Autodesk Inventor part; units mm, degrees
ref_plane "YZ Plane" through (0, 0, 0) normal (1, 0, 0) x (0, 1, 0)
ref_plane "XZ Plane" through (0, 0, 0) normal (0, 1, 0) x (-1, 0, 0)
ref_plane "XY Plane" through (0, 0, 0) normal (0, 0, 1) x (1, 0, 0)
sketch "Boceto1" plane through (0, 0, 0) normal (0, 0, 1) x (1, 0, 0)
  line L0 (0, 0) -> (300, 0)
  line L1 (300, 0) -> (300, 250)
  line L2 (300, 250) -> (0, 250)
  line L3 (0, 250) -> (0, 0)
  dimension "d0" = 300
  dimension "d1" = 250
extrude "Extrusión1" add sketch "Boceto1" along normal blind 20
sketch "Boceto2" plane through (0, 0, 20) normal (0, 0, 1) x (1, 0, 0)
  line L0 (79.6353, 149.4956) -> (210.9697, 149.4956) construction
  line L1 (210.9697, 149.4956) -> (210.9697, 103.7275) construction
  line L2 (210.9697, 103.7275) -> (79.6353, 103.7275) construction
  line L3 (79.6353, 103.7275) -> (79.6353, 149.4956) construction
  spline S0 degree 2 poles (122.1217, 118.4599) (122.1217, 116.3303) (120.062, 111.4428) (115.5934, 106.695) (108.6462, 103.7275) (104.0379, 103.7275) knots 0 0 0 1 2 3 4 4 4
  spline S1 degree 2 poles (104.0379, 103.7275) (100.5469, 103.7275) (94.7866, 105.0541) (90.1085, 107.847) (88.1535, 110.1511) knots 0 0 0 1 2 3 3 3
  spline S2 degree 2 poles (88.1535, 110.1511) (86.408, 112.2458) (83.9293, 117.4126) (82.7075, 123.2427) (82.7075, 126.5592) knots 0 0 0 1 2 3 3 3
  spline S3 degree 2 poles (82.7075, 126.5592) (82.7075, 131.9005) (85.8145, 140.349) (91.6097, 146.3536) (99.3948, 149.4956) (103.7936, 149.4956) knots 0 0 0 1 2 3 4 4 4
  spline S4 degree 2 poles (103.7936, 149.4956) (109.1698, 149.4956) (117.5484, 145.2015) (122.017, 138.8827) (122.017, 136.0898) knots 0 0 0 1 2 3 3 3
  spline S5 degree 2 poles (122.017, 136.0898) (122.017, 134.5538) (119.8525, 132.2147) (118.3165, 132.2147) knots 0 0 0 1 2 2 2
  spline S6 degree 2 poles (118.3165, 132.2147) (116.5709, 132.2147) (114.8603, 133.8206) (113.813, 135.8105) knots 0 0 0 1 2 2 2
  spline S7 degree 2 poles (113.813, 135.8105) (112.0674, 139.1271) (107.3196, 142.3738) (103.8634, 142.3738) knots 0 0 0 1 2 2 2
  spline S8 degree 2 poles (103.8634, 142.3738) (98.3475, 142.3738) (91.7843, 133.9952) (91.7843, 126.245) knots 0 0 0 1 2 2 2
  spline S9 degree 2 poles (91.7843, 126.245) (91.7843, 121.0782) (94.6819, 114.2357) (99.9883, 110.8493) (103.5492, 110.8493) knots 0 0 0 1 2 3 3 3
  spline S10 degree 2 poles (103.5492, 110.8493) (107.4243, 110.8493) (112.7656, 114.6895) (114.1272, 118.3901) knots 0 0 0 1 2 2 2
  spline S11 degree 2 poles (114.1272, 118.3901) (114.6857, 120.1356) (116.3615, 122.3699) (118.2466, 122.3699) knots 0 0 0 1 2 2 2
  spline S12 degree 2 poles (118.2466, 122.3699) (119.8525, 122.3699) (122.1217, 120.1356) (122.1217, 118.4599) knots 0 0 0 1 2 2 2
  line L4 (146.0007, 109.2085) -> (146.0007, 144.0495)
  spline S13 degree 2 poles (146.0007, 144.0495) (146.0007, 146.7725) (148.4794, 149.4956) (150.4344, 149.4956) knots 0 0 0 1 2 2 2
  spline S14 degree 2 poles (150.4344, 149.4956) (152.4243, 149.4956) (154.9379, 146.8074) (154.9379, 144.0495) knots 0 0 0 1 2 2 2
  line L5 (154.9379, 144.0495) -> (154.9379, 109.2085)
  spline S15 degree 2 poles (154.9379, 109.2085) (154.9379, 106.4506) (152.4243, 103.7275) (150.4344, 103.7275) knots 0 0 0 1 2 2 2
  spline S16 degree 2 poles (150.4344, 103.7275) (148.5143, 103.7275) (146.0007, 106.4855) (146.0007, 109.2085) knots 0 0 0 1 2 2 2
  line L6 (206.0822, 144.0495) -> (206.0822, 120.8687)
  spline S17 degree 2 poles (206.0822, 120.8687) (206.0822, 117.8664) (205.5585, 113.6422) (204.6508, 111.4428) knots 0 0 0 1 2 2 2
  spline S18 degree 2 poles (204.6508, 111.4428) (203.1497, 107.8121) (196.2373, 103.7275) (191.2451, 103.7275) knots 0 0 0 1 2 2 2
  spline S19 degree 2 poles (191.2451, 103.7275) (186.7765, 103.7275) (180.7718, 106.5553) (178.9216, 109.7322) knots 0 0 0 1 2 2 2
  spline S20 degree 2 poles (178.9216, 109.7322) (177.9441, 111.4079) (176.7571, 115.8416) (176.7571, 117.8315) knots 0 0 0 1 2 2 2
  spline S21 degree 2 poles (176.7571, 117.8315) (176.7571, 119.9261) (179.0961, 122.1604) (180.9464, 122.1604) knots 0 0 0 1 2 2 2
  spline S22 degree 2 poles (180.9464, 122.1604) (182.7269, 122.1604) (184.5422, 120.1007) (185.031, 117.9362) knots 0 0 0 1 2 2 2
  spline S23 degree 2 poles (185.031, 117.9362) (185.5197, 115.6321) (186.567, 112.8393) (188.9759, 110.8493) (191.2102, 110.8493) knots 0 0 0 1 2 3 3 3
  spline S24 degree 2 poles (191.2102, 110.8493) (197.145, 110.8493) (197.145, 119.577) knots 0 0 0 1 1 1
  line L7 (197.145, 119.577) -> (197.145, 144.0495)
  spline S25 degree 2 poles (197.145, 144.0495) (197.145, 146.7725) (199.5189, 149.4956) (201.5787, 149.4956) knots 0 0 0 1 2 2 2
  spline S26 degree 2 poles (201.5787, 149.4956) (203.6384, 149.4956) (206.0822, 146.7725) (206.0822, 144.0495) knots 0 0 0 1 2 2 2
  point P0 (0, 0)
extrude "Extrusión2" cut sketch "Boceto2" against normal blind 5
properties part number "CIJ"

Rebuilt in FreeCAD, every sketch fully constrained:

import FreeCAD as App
import Part
import Sketcher
from FreeCAD import Vector


def add_polygon(sketch, points):
    """Adds a closed chain of lines whose ends are joined by coincident constraints."""
    first, n = sketch.GeometryCount, len(points)
    for a, b in zip(points, points[1:] + points[:1]):
        sketch.addGeometry(Part.LineSegment(App.Vector(*a, 0), App.Vector(*b, 0)), False)
    for i in range(n):
        sketch.addConstraint(Sketcher.Constraint("Coincident", first + i, 2, first + (i + 1) % n, 1))

doc = App.newDocument("Part")
body = doc.addObject("PartDesign::Body", "Body")

# Sketch on XY plane
sketch1 = body.newObject("Sketcher::SketchObject", "Sketch")
sketch1.AttachmentSupport = (doc.getObject("XY_Plane"), [""])
sketch1.MapMode = "FlatFace"
add_polygon(sketch1, [(0, 250), (0, 0), (300, 0), (300, 250)])  # lines 0-3
sketch1.addConstraint(Sketcher.Constraint("Vertical", 0))
sketch1.addConstraint(Sketcher.Constraint("Horizontal", 1))
sketch1.addConstraint(Sketcher.Constraint("Vertical", 2))
sketch1.addConstraint(Sketcher.Constraint("Horizontal", 3))
sketch1.addConstraint(Sketcher.Constraint("Coincident", 0, 2, -1, 1))
sketch1.addConstraint(Sketcher.Constraint("DistanceX", 1, 1, 1, 2, 300.0))
sketch1.addConstraint(Sketcher.Constraint("DistanceY", 0, 2, 0, 1, 250.0))
pad1 = body.newObject("PartDesign::Pad", "Pad")
pad1.Profile = sketch1
pad1.Length = 20

# Sketch on XY plane
sketch2 = body.newObject("Sketcher::SketchObject", "Sketch001")
sketch2.AttachmentSupport = (doc.getObject("XY_Plane"), [""])
sketch2.MapMode = "FlatFace"
sketch2.AttachmentOffset = App.Placement(Vector(0, 0, 20), App.Rotation())
sketch2.addGeometry(Part.BSplineCurve([Vector(122.1217, 118.4599, 0), Vector(122.1217, 116.3303, 0), Vector(120.062, 111.4428, 0), Vector(115.5934, 106.695, 0), Vector(108.6462, 103.7275, 0), Vector(104.0379, 103.7275, 0)], [3, 1, 1, 1, 3], [0, 1, 2, 3, 4], False, 2, [1, 1, 1, 1, 1, 1], False), False)
sketch2.addGeometry(Part.BSplineCurve([Vector(118.2466, 122.3699, 0), Vector(119.8525, 122.3699, 0), Vector(122.1217, 120.1356, 0), Vector(122.1217, 118.4599, 0)], [3, 1, 3], [0, 1, 2], False, 2, [1, 1, 1, 1], False), False)
sketch2.addGeometry(Part.BSplineCurve([Vector(114.1272, 118.3901, 0), Vector(114.6857, 120.1356, 0), Vector(116.3615, 122.3699, 0), Vector(118.2466, 122.3699, 0)], [3, 1, 3], [0, 1, 2], False, 2, [1, 1, 1, 1], False), False)
sketch2.addGeometry(Part.BSplineCurve([Vector(103.5492, 110.8493, 0), Vector(107.4243, 110.8493, 0), Vector(112.7656, 114.6895, 0), Vector(114.1272, 118.3901, 0)], [3, 1, 3], [0, 1, 2], False, 2, [1, 1, 1, 1], False), False)
sketch2.addGeometry(Part.BSplineCurve([Vector(91.7843, 126.245, 0), Vector(91.7843, 121.0782, 0), Vector(94.6819, 114.2357, 0), Vector(99.9883, 110.8493, 0), Vector(103.5492, 110.8493, 0)], [3, 1, 1, 3], [0, 1, 2, 3], False, 2, [1, 1, 1, 1, 1], False), False)
sketch2.addGeometry(Part.BSplineCurve([Vector(103.8634, 142.3738, 0), Vector(98.3475, 142.3738, 0), Vector(91.7843, 133.9952, 0), Vector(91.7843, 126.245, 0)], [3, 1, 3], [0, 1, 2], False, 2, [1, 1, 1, 1], False), False)
sketch2.addGeometry(Part.BSplineCurve([Vector(113.813, 135.8105, 0), Vector(112.0674, 139.1271, 0), Vector(107.3196, 142.3738, 0), Vector(103.8634, 142.3738, 0)], [3, 1, 3], [0, 1, 2], False, 2, [1, 1, 1, 1], False), False)
sketch2.addGeometry(Part.BSplineCurve([Vector(118.3165, 132.2147, 0), Vector(116.5709, 132.2147, 0), Vector(114.8603, 133.8206, 0), Vector(113.813, 135.8105, 0)], [3, 1, 3], [0, 1, 2], False, 2, [1, 1, 1, 1], False), False)
sketch2.addGeometry(Part.BSplineCurve([Vector(122.017, 136.0898, 0), Vector(122.017, 134.5538, 0), Vector(119.8525, 132.2147, 0), Vector(118.3165, 132.2147, 0)], [3, 1, 3], [0, 1, 2], False, 2, [1, 1, 1, 1], False), False)
sketch2.addGeometry(Part.BSplineCurve([Vector(103.7936, 149.4956, 0), Vector(109.1698, 149.4956, 0), Vector(117.5484, 145.2015, 0), Vector(122.017, 138.8827, 0), Vector(122.017, 136.0898, 0)], [3, 1, 1, 3], [0, 1, 2, 3], False, 2, [1, 1, 1, 1, 1], False), False)
sketch2.addGeometry(Part.BSplineCurve([Vector(82.7075, 126.5592, 0), Vector(82.7075, 131.9005, 0), Vector(85.8145, 140.349, 0), Vector(91.6097, 146.3536, 0), Vector(99.3948, 149.4956, 0), Vector(103.7936, 149.4956, 0)], [3, 1, 1, 1, 3], [0, 1, 2, 3, 4], False, 2, [1, 1, 1, 1, 1, 1], False), False)
sketch2.addGeometry(Part.BSplineCurve([Vector(88.1535, 110.1511, 0), Vector(86.408, 112.2458, 0), Vector(83.9293, 117.4126, 0), Vector(82.7075, 123.2427, 0), Vector(82.7075, 126.5592, 0)], [3, 1, 1, 3], [0, 1, 2, 3], False, 2, [1, 1, 1, 1, 1], False), False)
sketch2.addGeometry(Part.BSplineCurve([Vector(104.0379, 103.7275, 0), Vector(100.5469, 103.7275, 0), Vector(94.7866, 105.0541, 0), Vector(90.1085, 107.847, 0), Vector(88.1535, 110.1511, 0)], [3, 1, 1, 3], [0, 1, 2, 3], False, 2, [1, 1, 1, 1, 1], False), False)
sketch2.addGeometry(Part.LineSegment(Vector(146.0007, 144.0495, 0), Vector(146.0007, 109.2085, 0)), False)
sketch2.addGeometry(Part.BSplineCurve([Vector(150.4344, 103.7275, 0), Vector(148.5143, 103.7275, 0), Vector(146.0007, 106.4855, 0), Vector(146.0007, 109.2085, 0)], [3, 1, 3], [0, 1, 2], False, 2, [1, 1, 1, 1], False), False)
sketch2.addGeometry(Part.BSplineCurve([Vector(154.9379, 109.2085, 0), Vector(154.9379, 106.4506, 0), Vector(152.4243, 103.7275, 0), Vector(150.4344, 103.7275, 0)], [3, 1, 3], [0, 1, 2], False, 2, [1, 1, 1, 1], False), False)
sketch2.addGeometry(Part.LineSegment(Vector(154.9379, 109.2085, 0), Vector(154.9379, 144.0495, 0)), False)
sketch2.addGeometry(Part.BSplineCurve([Vector(150.4344, 149.4956, 0), Vector(152.4243, 149.4956, 0), Vector(154.9379, 146.8074, 0), Vector(154.9379, 144.0495, 0)], [3, 1, 3], [0, 1, 2], False, 2, [1, 1, 1, 1], False), False)
sketch2.addGeometry(Part.BSplineCurve([Vector(146.0007, 144.0495, 0), Vector(146.0007, 146.7725, 0), Vector(148.4794, 149.4956, 0), Vector(150.4344, 149.4956, 0)], [3, 1, 3], [0, 1, 2], False, 2, [1, 1, 1, 1], False), False)
sketch2.addGeometry(Part.LineSegment(Vector(206.0822, 120.8687, 0), Vector(206.0822, 144.0495, 0)), False)
sketch2.addGeometry(Part.BSplineCurve([Vector(201.5787, 149.4956, 0), Vector(203.6384, 149.4956, 0), Vector(206.0822, 146.7725, 0), Vector(206.0822, 144.0495, 0)], [3, 1, 3], [0, 1, 2], False, 2, [1, 1, 1, 1], False), False)
sketch2.addGeometry(Part.BSplineCurve([Vector(197.145, 144.0495, 0), Vector(197.145, 146.7725, 0), Vector(199.5189, 149.4956, 0), Vector(201.5787, 149.4956, 0)], [3, 1, 3], [0, 1, 2], False, 2, [1, 1, 1, 1], False), False)
sketch2.addGeometry(Part.LineSegment(Vector(197.145, 144.0495, 0), Vector(197.145, 119.577, 0)), False)
sketch2.addGeometry(Part.BSplineCurve([Vector(191.2102, 110.8493, 0), Vector(197.145, 110.8493, 0), Vector(197.145, 119.577, 0)], [3, 3], [0, 1], False, 2, [1, 1, 1], False), False)
sketch2.addGeometry(Part.BSplineCurve([Vector(185.031, 117.9362, 0), Vector(185.5197, 115.6321, 0), Vector(186.567, 112.8393, 0), Vector(188.9759, 110.8493, 0), Vector(191.2102, 110.8493, 0)], [3, 1, 1, 3], [0, 1, 2, 3], False, 2, [1, 1, 1, 1, 1], False), False)
sketch2.addGeometry(Part.BSplineCurve([Vector(180.9464, 122.1604, 0), Vector(182.7269, 122.1604, 0), Vector(184.5422, 120.1007, 0), Vector(185.031, 117.9362, 0)], [3, 1, 3], [0, 1, 2], False, 2, [1, 1, 1, 1], False), False)
sketch2.addGeometry(Part.BSplineCurve([Vector(176.7571, 117.8315, 0), Vector(176.7571, 119.9261, 0), Vector(179.0961, 122.1604, 0), Vector(180.9464, 122.1604, 0)], [3, 1, 3], [0, 1, 2], False, 2, [1, 1, 1, 1], False), False)
sketch2.addGeometry(Part.BSplineCurve([Vector(178.9216, 109.7322, 0), Vector(177.9441, 111.4079, 0), Vector(176.7571, 115.8416, 0), Vector(176.7571, 117.8315, 0)], [3, 1, 3], [0, 1, 2], False, 2, [1, 1, 1, 1], False), False)
sketch2.addGeometry(Part.BSplineCurve([Vector(191.2451, 103.7275, 0), Vector(186.7765, 103.7275, 0), Vector(180.7718, 106.5553, 0), Vector(178.9216, 109.7322, 0)], [3, 1, 3], [0, 1, 2], False, 2, [1, 1, 1, 1], False), False)
sketch2.addGeometry(Part.BSplineCurve([Vector(204.6508, 111.4428, 0), Vector(203.1497, 107.8121, 0), Vector(196.2373, 103.7275, 0), Vector(191.2451, 103.7275, 0)], [3, 1, 3], [0, 1, 2], False, 2, [1, 1, 1, 1], False), False)
sketch2.addGeometry(Part.BSplineCurve([Vector(206.0822, 120.8687, 0), Vector(206.0822, 117.8664, 0), Vector(205.5585, 113.6422, 0), Vector(204.6508, 111.4428, 0)], [3, 1, 3], [0, 1, 2], False, 2, [1, 1, 1, 1], False), False)
sketch2.addConstraint(Sketcher.Constraint("Block", 0))
sketch2.addConstraint(Sketcher.Constraint("Block", 1))
sketch2.addConstraint(Sketcher.Constraint("Block", 2))
sketch2.addConstraint(Sketcher.Constraint("Block", 3))
sketch2.addConstraint(Sketcher.Constraint("Block", 4))
sketch2.addConstraint(Sketcher.Constraint("Block", 5))
sketch2.addConstraint(Sketcher.Constraint("Block", 6))
sketch2.addConstraint(Sketcher.Constraint("Block", 7))
sketch2.addConstraint(Sketcher.Constraint("Block", 8))
sketch2.addConstraint(Sketcher.Constraint("Block", 9))
sketch2.addConstraint(Sketcher.Constraint("Block", 10))
sketch2.addConstraint(Sketcher.Constraint("Block", 11))
sketch2.addConstraint(Sketcher.Constraint("Block", 12))
sketch2.addConstraint(Sketcher.Constraint("Block", 14))
sketch2.addConstraint(Sketcher.Constraint("Block", 15))
sketch2.addConstraint(Sketcher.Constraint("Block", 17))
sketch2.addConstraint(Sketcher.Constraint("Block", 18))
sketch2.addConstraint(Sketcher.Constraint("Block", 20))
sketch2.addConstraint(Sketcher.Constraint("Block", 21))
sketch2.addConstraint(Sketcher.Constraint("Block", 23))
sketch2.addConstraint(Sketcher.Constraint("Block", 24))
sketch2.addConstraint(Sketcher.Constraint("Block", 25))
sketch2.addConstraint(Sketcher.Constraint("Block", 26))
sketch2.addConstraint(Sketcher.Constraint("Block", 27))
sketch2.addConstraint(Sketcher.Constraint("Block", 28))
sketch2.addConstraint(Sketcher.Constraint("Block", 29))
sketch2.addConstraint(Sketcher.Constraint("Block", 30))
sketch2.addConstraint(Sketcher.Constraint("Coincident", 13, 2, 14, 2))
sketch2.addConstraint(Sketcher.Constraint("Coincident", 15, 1, 16, 1))
sketch2.addConstraint(Sketcher.Constraint("Coincident", 16, 2, 17, 2))
sketch2.addConstraint(Sketcher.Constraint("Coincident", 18, 1, 13, 1))
sketch2.addConstraint(Sketcher.Constraint("Coincident", 19, 2, 20, 2))
sketch2.addConstraint(Sketcher.Constraint("Coincident", 21, 1, 22, 1))
sketch2.addConstraint(Sketcher.Constraint("Coincident", 22, 2, 23, 2))
sketch2.addConstraint(Sketcher.Constraint("Coincident", 30, 1, 19, 1))
pocket1 = body.newObject("PartDesign::Pocket", "Pocket")
pocket1.Profile = sketch2
pocket1.Length = 5

doc.recompute()
